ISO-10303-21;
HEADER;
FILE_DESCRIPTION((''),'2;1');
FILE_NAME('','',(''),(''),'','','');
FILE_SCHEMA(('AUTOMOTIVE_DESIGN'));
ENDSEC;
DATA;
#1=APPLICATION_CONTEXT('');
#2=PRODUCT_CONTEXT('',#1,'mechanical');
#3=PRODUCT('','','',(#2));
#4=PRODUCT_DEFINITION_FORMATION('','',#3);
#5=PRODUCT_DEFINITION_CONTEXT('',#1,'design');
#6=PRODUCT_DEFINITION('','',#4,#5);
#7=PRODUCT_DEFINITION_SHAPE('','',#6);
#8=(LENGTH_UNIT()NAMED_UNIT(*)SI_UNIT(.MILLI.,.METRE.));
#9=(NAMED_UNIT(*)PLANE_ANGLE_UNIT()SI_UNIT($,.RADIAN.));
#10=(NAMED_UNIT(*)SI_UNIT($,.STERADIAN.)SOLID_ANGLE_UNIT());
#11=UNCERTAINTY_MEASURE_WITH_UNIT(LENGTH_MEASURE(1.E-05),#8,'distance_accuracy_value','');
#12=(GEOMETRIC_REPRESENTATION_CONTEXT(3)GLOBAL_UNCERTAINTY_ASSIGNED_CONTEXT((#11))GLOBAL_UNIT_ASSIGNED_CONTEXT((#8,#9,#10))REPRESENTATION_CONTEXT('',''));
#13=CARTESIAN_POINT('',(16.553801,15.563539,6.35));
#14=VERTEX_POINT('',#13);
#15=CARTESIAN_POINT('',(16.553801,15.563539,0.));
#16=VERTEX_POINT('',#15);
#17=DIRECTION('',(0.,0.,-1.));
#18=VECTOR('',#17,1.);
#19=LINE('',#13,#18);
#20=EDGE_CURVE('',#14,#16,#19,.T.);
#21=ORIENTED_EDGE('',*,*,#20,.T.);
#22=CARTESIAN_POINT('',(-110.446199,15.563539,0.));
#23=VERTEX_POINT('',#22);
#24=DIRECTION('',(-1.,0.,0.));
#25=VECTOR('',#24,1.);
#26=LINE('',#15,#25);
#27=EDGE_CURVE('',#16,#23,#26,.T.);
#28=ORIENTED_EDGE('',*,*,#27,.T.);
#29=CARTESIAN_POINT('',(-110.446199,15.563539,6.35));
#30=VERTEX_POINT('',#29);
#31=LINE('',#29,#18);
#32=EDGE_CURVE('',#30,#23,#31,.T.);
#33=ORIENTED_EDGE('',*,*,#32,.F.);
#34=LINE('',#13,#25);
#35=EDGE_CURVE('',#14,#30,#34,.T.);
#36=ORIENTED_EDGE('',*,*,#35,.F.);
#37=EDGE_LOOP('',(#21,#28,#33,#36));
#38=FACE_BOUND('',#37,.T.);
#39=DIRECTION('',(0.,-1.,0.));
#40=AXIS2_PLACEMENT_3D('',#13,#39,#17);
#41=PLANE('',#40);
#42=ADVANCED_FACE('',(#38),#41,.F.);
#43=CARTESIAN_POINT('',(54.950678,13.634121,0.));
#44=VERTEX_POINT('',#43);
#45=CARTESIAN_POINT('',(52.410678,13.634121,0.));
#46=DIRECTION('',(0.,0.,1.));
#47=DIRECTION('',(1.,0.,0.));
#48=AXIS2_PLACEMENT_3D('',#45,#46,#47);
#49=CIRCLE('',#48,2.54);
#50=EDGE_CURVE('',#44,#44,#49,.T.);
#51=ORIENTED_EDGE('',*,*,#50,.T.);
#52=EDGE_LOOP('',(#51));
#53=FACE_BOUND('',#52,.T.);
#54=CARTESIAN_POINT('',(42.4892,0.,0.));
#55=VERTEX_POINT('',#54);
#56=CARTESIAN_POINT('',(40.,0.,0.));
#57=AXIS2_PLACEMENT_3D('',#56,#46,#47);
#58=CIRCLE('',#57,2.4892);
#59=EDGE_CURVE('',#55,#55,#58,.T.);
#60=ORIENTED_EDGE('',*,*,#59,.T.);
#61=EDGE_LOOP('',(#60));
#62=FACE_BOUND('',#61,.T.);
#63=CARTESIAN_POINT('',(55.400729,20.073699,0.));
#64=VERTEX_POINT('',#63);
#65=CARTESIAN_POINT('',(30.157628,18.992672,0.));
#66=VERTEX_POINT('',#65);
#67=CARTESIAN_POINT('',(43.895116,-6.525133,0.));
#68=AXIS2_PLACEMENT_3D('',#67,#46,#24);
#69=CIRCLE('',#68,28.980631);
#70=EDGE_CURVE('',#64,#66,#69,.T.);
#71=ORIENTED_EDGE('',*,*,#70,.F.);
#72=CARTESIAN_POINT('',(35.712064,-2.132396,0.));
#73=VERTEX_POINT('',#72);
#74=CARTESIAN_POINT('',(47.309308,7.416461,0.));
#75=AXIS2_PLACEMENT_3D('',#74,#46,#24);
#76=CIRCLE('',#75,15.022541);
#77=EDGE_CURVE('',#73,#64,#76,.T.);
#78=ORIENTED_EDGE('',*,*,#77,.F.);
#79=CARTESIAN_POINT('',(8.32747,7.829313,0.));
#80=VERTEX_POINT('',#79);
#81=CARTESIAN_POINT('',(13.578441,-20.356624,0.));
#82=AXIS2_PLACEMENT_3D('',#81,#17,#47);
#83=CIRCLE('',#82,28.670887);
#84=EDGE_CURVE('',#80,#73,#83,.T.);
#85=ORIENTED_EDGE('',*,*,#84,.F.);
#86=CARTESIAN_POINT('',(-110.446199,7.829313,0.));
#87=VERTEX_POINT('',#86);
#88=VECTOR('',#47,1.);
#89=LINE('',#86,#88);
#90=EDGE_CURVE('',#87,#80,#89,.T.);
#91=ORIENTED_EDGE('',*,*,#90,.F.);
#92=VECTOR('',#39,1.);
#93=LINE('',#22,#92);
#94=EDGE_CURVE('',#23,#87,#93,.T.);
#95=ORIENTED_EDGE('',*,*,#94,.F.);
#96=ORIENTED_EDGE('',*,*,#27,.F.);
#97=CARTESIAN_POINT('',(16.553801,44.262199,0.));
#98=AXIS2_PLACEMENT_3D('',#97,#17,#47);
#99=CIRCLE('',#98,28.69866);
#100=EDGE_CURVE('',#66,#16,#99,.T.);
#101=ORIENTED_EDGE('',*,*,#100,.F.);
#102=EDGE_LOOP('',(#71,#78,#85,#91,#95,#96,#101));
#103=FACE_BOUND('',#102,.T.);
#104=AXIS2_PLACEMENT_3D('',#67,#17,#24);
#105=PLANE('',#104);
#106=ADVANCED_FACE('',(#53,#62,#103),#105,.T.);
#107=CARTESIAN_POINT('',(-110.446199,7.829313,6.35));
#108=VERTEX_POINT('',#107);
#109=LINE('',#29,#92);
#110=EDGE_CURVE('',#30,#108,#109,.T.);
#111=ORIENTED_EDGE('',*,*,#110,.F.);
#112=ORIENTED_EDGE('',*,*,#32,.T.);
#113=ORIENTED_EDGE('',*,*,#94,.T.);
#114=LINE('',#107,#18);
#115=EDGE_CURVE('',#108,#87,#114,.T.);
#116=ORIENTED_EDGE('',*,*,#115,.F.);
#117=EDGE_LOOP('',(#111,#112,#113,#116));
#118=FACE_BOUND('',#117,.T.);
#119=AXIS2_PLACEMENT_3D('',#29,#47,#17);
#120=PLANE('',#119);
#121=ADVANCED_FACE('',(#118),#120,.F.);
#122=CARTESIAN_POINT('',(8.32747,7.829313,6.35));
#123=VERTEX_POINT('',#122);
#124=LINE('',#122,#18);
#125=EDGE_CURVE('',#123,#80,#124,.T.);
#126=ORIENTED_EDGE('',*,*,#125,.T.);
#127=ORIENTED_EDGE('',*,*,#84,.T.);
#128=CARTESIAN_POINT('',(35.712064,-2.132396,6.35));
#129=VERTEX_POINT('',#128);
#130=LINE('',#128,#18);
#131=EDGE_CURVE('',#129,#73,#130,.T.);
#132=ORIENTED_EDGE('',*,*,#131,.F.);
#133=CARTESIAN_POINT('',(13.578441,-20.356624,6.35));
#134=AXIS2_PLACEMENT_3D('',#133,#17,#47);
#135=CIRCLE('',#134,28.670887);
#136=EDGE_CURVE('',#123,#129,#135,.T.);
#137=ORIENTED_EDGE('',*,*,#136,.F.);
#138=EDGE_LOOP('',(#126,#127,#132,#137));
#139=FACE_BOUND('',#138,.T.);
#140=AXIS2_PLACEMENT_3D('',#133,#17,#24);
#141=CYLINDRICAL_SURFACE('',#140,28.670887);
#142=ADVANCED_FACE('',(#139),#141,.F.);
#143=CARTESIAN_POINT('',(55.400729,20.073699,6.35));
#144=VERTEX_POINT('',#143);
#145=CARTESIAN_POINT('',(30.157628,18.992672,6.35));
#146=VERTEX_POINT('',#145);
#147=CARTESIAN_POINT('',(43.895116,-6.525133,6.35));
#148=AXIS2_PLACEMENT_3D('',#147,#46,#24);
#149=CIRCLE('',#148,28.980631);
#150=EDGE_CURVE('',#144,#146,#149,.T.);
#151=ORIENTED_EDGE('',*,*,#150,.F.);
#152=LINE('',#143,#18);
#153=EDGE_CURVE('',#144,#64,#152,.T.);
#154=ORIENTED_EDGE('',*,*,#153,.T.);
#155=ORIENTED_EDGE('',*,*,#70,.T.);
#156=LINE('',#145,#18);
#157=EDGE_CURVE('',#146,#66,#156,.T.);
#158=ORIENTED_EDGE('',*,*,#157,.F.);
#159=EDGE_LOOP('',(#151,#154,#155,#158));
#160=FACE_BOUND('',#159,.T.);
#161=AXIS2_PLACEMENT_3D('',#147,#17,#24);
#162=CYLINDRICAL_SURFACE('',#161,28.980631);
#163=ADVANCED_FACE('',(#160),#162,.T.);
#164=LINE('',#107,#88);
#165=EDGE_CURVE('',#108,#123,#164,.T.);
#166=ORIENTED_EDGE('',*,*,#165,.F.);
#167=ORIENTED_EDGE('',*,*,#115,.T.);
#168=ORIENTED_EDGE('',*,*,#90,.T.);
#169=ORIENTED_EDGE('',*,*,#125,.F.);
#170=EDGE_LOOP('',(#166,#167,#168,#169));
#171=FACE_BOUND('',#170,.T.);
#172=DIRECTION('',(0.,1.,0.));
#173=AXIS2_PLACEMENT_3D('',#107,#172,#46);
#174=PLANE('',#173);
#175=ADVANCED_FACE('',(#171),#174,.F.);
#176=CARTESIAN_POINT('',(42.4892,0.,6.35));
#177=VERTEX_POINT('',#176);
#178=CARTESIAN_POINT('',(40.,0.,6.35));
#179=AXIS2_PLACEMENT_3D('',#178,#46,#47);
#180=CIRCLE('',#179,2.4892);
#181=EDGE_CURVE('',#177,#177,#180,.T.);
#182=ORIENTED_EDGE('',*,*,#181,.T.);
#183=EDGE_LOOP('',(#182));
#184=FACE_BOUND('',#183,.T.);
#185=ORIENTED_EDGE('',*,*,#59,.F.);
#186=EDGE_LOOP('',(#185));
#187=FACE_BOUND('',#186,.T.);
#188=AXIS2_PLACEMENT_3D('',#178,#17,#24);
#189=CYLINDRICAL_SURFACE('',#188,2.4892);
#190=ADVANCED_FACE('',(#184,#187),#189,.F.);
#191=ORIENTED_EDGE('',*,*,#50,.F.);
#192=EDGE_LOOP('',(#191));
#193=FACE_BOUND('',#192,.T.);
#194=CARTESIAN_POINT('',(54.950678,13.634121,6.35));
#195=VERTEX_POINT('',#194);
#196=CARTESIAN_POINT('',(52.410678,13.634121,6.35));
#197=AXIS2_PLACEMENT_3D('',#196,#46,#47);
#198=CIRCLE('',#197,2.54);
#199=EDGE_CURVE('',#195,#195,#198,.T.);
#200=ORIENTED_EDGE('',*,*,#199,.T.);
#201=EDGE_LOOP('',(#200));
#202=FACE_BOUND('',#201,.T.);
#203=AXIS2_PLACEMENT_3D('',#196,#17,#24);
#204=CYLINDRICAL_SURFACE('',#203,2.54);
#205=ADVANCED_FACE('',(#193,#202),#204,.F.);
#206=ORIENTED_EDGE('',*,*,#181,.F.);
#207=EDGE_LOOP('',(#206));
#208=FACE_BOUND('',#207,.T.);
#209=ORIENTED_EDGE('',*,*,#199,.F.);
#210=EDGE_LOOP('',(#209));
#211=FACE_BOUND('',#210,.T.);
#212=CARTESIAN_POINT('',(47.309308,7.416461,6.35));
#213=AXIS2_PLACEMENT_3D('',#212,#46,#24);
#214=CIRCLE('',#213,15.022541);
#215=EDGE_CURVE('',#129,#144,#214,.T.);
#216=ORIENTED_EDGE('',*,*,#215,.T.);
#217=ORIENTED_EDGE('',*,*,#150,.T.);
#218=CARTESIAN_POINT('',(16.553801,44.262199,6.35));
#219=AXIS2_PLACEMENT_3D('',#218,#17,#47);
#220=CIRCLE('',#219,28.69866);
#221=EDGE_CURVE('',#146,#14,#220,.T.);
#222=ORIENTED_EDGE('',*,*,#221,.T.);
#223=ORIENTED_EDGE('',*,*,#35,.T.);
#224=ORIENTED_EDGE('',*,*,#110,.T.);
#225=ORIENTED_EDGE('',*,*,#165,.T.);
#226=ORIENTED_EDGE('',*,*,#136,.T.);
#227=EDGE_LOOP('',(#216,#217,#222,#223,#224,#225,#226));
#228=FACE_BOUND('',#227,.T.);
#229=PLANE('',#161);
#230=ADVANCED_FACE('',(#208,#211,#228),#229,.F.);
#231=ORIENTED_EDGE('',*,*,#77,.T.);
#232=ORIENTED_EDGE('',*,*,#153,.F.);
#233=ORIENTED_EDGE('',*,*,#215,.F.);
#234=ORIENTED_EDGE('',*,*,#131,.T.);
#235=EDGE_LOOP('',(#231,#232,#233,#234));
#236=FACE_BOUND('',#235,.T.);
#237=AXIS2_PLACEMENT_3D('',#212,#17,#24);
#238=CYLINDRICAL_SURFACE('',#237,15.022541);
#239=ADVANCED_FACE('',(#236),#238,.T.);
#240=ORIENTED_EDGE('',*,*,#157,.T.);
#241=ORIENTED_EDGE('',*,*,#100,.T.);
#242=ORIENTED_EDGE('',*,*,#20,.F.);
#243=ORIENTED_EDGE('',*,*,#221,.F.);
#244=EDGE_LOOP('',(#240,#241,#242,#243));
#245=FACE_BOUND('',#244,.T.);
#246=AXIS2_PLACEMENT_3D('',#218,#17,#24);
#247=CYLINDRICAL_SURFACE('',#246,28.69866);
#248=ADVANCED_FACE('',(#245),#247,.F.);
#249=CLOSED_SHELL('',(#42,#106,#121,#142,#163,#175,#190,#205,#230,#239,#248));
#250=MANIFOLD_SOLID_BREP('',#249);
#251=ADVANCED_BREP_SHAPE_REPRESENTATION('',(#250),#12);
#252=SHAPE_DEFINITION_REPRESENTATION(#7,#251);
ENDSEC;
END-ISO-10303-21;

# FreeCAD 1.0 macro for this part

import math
import FreeCAD as App
import Part
import Sketcher
from FreeCAD import Vector
Q = App.Units.Quantity

doc = App.newDocument("Part")
body = doc.addObject("PartDesign::Body", "Body")

# Sketch on XY plane
sketch1 = body.newObject("Sketcher::SketchObject", "Sketch")
sketch1.AttachmentSupport = (doc.getObject("XY_Plane"), [""])
sketch1.MapMode = "FlatFace"
sketch1.addGeometry([
    Part.LineSegment(Vector(16.6, 15.6, 0), Vector(-110.4, 15.6, 0)),  # 0
    Part.LineSegment(Vector(-110.4, 15.6, 0), Vector(-110.4, 7.8, 0)),  # 1
    Part.LineSegment(Vector(-110.4, 7.8, 0), Vector(8.3, 7.8, 0)),  # 2
    Part.ArcOfCircle(Part.Circle(Vector(13.6, -20.4, 0), Vector(0, 0, 1), 28.7), math.radians(39), math.radians(101)),  # 3
    Part.ArcOfCircle(Part.Circle(Vector(47.3, 7.4, 0), Vector(0, 0, 1), 15), math.radians(-141), math.radians(57)),  # 4
    Part.ArcOfCircle(Part.Circle(Vector(43.9, -6.5, 0), Vector(0, 0, 1), 29), math.radians(67), math.radians(118)),  # 5
    Part.ArcOfCircle(Part.Circle(Vector(16.6, 44.3, 0), Vector(0, 0, 1), 28.7), math.radians(-90), math.radians(-62)),  # 6
    Part.Circle(Vector(40, 0, 0), Vector(0, 0, 1), 2.5),  # 7
    Part.Circle(Vector(52.4, 13.6, 0), Vector(0, 0, 1), 2.5),  # 8
], False)
sketch1.addConstraint([
    Sketcher.Constraint("Coincident", 0, 2, 1, 1),
    Sketcher.Constraint("Coincident", 1, 2, 2, 1),
    Sketcher.Constraint("Coincident", 2, 2, 3, 2),
    Sketcher.Constraint("Tangent", 3, 1, 4, 1),
    Sketcher.Constraint("Coincident", 4, 2, 5, 1),
    Sketcher.Constraint("Tangent", 5, 2, 6, 2),
    Sketcher.Constraint("Tangent", 6, 1, 0, 1),
    Sketcher.Constraint("Horizontal", 0),
    Sketcher.Constraint("Vertical", 1),
    Sketcher.Constraint("Horizontal", 2),
    Sketcher.Constraint("PointOnObject", 7, 3, -1),
    Sketcher.Constraint("Diameter", 8, Q("0.2 in")),
    Sketcher.Constraint("DistanceX", 0, 2, 0, 1, Q("5 in")),
    Sketcher.Constraint("Diameter", 7, Q("0.196 in")),
    Sketcher.Constraint("Radius", 4, 15.022541),
    Sketcher.Constraint("Radius", 5, 28.980631),
    Sketcher.Constraint("Radius", 6, 28.69866),
    Sketcher.Constraint("Radius", 3, 28.670887),
    Sketcher.Constraint("DistanceX", 2, 1, 2, 2, 118.773669),
    Sketcher.Constraint("DistanceX", -1, 1, 6, 3, 16.553801),
    Sketcher.Constraint("DistanceY", -1, 1, 6, 3, 44.262199),
    Sketcher.Constraint("DistanceX", -1, 1, 7, 3, 40.0),
    Sketcher.Constraint("DistanceY", -1, 1, 4, 2, 20.073699),
    Sketcher.Constraint("DistanceY", 1, 2, 1, 1, 7.734225),
    Sketcher.Constraint("DistanceX", -1, 1, 3, 3, 13.578441),
    Sketcher.Constraint("DistanceX", -1, 1, 4, 3, 47.309308),
    Sketcher.Constraint("DistanceY", -1, 1, 8, 3, 13.634121),
    Sketcher.Constraint("DistanceX", 4, 3, 8, 3, 5.101369),
])
pad1 = body.newObject("PartDesign::Pad", "Pad")
pad1.Profile = sketch1
pad1.Length = Q("0.25 in")

doc.recompute()
